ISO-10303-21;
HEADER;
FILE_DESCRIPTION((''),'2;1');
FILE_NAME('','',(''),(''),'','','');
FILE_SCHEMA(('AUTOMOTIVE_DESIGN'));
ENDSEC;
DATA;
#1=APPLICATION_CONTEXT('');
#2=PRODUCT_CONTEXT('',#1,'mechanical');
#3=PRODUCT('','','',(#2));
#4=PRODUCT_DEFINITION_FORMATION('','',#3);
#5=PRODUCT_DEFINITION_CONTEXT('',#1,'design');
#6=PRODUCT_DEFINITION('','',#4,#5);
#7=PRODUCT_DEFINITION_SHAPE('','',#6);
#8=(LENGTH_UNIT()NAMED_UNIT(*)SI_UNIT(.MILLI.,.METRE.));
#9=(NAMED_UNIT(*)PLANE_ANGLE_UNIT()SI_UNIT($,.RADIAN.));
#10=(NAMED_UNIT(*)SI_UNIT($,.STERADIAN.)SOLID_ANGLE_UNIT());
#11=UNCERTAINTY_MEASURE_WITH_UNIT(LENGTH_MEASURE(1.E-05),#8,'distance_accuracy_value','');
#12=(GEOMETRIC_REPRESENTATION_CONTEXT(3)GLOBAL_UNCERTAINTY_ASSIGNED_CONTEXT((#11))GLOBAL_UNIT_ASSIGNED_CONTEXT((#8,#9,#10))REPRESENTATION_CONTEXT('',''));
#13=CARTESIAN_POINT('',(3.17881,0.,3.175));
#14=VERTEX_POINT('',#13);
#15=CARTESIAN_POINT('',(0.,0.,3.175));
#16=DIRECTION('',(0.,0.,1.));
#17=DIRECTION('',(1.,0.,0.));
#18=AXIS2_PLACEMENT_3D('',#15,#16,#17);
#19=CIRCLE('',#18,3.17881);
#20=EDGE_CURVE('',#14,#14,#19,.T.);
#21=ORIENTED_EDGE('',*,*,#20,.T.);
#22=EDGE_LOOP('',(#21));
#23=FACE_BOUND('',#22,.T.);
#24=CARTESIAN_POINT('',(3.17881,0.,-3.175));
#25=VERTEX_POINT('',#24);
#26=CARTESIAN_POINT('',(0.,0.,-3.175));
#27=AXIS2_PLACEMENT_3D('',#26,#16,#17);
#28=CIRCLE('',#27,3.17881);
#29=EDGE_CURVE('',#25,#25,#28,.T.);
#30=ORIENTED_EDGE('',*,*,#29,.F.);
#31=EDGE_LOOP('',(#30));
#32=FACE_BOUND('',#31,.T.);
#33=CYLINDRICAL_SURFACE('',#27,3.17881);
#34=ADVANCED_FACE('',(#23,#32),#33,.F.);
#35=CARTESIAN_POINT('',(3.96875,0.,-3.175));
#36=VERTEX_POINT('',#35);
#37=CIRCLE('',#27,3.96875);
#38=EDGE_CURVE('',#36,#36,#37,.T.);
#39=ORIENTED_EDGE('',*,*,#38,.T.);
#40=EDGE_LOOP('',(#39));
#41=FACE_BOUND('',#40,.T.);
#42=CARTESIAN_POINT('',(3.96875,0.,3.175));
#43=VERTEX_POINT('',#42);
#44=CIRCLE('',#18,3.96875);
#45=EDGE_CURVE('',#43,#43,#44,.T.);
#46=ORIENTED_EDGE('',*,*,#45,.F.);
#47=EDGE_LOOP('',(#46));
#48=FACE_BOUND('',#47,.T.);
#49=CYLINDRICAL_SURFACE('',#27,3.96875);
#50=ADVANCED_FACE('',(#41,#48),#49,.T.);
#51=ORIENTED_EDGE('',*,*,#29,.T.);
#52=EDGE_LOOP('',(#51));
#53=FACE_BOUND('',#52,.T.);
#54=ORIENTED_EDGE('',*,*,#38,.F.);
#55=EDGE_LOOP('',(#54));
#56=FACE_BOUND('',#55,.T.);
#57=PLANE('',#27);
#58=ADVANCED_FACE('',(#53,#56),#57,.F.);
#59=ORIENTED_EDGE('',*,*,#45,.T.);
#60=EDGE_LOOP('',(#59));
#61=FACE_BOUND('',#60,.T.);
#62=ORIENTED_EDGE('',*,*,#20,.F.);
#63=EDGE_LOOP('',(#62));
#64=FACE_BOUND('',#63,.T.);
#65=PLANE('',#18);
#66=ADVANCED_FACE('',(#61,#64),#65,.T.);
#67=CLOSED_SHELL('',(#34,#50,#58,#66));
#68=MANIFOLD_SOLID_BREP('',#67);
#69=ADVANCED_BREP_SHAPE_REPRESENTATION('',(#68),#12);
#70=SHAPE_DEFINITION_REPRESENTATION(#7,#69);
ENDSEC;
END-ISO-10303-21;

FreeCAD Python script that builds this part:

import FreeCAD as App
import Part
import Sketcher
Q = App.Units.Quantity

doc = App.newDocument("Part")
body = doc.addObject("PartDesign::Body", "Body")

# Sketch on XY plane
sketch1 = body.newObject("Sketcher::SketchObject", "Sketch")
sketch1.AttachmentSupport = (doc.getObject("XY_Plane"), [""])
sketch1.MapMode = "FlatFace"
sketch1.addGeometry([
    Part.Circle(App.Vector(0, 0, 0), App.Vector(0, 0, 1), 4),
    Part.Circle(App.Vector(0, 0, 0), App.Vector(0, 0, 1), 3.2),
], False)
sketch1.addConstraint([
    Sketcher.Constraint("Coincident", 0, 3, -1, 1),
    Sketcher.Constraint("Coincident", 1, 3, -1, 1),
    Sketcher.Constraint("Diameter", 0, Q("0.3125 in")),
    Sketcher.Constraint("Diameter", 1, Q("0.2503 in")),
])
pad1 = body.newObject("PartDesign::Pad", "Pad")
pad1.Profile = sketch1
pad1.Type = "TwoLengths"
pad1.Length = Q("0.125 in")
pad1.Length2 = Q("0.125 in")

doc.recompute()
